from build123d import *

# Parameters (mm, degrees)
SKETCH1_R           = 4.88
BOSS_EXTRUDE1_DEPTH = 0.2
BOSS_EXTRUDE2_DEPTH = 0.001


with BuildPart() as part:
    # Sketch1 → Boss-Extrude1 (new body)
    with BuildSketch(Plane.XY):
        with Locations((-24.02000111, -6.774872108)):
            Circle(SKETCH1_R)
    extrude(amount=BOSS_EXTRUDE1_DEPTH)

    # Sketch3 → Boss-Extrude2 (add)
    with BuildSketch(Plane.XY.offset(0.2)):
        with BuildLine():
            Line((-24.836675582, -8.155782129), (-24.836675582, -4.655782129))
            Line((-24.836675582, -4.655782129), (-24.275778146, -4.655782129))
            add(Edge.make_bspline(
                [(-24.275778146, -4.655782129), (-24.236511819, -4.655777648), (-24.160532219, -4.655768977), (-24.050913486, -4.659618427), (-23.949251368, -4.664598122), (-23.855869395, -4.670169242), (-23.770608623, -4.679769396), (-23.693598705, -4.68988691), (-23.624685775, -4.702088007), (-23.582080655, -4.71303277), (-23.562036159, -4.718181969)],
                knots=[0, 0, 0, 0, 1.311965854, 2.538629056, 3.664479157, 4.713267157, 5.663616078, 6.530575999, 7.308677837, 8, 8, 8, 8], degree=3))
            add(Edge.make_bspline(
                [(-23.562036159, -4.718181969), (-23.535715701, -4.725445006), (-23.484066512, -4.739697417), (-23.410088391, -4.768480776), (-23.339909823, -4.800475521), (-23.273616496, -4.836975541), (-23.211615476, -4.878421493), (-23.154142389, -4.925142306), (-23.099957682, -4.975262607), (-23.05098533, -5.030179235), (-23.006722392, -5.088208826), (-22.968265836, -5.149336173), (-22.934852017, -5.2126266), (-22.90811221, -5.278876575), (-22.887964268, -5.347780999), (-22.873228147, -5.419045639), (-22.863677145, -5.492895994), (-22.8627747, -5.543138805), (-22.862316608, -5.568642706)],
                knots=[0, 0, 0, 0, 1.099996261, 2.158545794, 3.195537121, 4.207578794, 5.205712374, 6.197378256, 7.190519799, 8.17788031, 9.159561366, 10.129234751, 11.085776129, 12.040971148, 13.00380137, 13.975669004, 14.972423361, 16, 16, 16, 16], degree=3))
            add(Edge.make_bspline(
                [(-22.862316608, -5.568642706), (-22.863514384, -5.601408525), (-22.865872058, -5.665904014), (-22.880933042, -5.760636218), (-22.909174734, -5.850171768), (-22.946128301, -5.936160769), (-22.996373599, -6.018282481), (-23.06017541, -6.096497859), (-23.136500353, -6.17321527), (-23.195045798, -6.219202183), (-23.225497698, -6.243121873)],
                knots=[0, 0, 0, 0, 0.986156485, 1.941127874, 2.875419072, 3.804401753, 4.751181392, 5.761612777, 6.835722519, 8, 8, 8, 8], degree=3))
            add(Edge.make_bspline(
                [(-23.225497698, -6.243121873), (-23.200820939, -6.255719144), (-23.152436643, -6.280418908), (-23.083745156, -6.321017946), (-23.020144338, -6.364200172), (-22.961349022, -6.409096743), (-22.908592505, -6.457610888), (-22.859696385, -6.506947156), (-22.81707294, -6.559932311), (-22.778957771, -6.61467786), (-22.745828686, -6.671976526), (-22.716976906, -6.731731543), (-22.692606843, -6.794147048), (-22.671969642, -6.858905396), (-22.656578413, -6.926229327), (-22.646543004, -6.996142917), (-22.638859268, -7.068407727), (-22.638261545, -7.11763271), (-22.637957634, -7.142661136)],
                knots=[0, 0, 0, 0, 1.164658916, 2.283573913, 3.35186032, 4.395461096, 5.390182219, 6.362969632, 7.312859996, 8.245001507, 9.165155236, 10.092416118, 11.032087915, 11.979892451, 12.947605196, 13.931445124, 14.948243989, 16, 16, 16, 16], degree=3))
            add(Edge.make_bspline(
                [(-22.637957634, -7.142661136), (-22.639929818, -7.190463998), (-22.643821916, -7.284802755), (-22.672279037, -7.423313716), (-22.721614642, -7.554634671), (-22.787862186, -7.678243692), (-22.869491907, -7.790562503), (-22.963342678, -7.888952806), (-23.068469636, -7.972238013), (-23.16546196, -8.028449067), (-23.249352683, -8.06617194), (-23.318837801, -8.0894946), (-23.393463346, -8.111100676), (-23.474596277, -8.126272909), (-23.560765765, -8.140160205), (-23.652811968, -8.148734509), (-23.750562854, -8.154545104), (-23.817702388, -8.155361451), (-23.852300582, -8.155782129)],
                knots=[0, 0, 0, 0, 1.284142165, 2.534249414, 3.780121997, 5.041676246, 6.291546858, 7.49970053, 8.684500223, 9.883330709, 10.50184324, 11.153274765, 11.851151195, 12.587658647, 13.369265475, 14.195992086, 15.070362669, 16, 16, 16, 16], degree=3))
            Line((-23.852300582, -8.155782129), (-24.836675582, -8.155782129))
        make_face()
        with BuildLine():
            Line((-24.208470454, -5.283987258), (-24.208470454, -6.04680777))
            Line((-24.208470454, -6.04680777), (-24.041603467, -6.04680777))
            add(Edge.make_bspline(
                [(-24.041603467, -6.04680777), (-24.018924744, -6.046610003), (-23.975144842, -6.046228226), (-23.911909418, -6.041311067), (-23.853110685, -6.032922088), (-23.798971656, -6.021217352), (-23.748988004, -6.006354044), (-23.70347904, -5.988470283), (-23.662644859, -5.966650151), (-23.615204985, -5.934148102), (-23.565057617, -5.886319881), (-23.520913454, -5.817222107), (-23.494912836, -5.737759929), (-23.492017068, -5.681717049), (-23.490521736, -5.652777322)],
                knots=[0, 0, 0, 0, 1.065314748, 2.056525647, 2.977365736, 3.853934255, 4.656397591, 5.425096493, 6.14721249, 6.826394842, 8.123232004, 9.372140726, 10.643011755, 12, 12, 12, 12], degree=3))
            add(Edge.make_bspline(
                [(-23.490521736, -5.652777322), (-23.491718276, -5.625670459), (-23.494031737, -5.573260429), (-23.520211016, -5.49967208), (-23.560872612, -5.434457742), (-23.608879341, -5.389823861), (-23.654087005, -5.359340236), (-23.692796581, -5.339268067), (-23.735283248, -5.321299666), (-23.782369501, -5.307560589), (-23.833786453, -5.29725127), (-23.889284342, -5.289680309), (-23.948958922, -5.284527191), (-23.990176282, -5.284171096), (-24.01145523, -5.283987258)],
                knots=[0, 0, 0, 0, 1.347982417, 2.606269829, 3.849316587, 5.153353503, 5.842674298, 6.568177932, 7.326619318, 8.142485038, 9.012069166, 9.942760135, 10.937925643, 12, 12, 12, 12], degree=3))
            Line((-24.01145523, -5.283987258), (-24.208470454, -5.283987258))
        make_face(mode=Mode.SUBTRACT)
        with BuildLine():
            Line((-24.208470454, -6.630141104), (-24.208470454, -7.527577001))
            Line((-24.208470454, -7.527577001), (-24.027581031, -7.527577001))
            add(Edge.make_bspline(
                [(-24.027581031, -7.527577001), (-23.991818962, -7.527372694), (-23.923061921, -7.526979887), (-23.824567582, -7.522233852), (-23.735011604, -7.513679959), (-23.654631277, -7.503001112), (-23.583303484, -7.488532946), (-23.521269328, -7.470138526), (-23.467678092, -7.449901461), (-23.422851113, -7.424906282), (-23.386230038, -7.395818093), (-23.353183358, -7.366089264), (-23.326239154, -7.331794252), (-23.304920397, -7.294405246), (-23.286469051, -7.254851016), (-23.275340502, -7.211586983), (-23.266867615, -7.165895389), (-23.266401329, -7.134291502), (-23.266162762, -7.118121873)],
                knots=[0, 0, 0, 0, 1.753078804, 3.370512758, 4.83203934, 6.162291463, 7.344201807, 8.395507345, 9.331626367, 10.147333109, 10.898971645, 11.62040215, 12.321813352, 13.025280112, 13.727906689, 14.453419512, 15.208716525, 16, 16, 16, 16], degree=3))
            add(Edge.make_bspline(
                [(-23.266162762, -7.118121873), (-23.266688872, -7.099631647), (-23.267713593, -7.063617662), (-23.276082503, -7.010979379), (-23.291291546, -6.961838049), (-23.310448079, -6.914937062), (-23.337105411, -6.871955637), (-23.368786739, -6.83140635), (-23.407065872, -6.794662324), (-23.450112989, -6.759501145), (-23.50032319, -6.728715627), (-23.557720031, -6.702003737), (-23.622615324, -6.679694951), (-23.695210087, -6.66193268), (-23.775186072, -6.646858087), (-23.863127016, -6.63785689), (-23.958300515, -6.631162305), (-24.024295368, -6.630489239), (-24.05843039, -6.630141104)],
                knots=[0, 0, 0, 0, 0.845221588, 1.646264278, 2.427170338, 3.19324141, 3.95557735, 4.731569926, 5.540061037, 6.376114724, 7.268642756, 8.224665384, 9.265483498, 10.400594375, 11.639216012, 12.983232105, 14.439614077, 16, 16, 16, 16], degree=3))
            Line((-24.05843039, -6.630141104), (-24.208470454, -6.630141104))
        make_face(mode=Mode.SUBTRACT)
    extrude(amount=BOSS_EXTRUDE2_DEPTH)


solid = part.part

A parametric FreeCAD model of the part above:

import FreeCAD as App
import Part
import Sketcher

V = App.Vector
Q = App.Units.Quantity

doc = App.newDocument("Part")
params = doc.addObject("Spreadsheet::Sheet", "Params")
for row, (alias, value) in enumerate([
    ("sketch1_diameter", "9.76 mm"),
    ("pad1_length", "0.2 mm"),
    ("pad2_length", "0.001 mm"),
], start=1):
    params.set(f"A{row}", alias)
    params.set(f"B{row}", "=" + value)
    params.setAlias(f"B{row}", alias)

body = doc.addObject("PartDesign::Body", "Body")

# Sketch on XY plane
sketch1 = doc.addObject("Sketcher::SketchObject", "Sketch")
body.addObject(sketch1)
sketch1.AttachmentSupport = (doc.XY_Plane, [""])
sketch1.MapMode = "FlatFace"
sketch1.addGeometry(Part.Circle(V(-24.020001, -6.774872, 0), V(0, 0, 1), 4.88), False)
sketch1.addConstraint(Sketcher.Constraint("Diameter", 0, Q("9.76 mm")))
sketch1.addConstraint(Sketcher.Constraint("DistanceX", 0, 3, -1, 1, Q("24.020001 mm")))
sketch1.addConstraint(Sketcher.Constraint("DistanceY", 0, 3, -1, 1, Q("6.774872 mm")))
sketch1.setExpression("Constraints[0]", "Params.sketch1_diameter")
pad1 = doc.addObject("PartDesign::Pad", "Pad")
body.addObject(pad1)
pad1.Profile = sketch1
pad1.setExpression("Length", "Params.pad1_length")

# Sketch on XY plane
sketch2 = doc.addObject("Sketcher::SketchObject", "Sketch001")
body.addObject(sketch2)
sketch2.AttachmentSupport = (doc.XY_Plane, [""])
sketch2.MapMode = "FlatFace"
sketch2.AttachmentOffset = App.Placement(V(0, 0, 0.2), App.Rotation())
sketch2.addGeometry(Part.LineSegment(V(-24.836676, -4.655782, 0), V(-24.836676, -8.155782, 0)), False)
sketch2.addGeometry(Part.LineSegment(V(-24.836676, -8.155782, 0), V(-23.852301, -8.155782, 0)), False)
sketch2.addGeometry(Part.BSplineCurve([V(-22.637958, -7.142661, 0), V(-22.63993, -7.190464, 0), V(-22.643822, -7.284803, 0), V(-22.672279, -7.423314, 0), V(-22.721615, -7.554635, 0), V(-22.787862, -7.678244, 0), V(-22.869492, -7.790563, 0), V(-22.963343, -7.888953, 0), V(-23.06847, -7.972238, 0), V(-23.165462, -8.028449, 0), V(-23.249353, -8.066172, 0), V(-23.318838, -8.089495, 0), V(-23.393463, -8.111101, 0), V(-23.474596, -8.126273, 0), V(-23.560766, -8.14016, 0), V(-23.652812, -8.148735, 0), V(-23.750563, -8.154545, 0), V(-23.817702, -8.155361, 0), V(-23.852301, -8.155782, 0)], [4, 1, 1, 1, 1, 1, 1, 1, 1, 1, 1, 1, 1, 1, 1, 1, 4], [0, 1.284142165, 2.534249414, 3.780121997, 5.041676246, 6.291546858, 7.49970053, 8.684500223, 9.883330709, 10.50184324, 11.153274765, 11.851151195, 12.587658647, 13.369265475, 14.195992086, 15.070362669, 16], False, 3, [1, 1, 1, 1, 1, 1, 1, 1, 1, 1, 1, 1, 1, 1, 1, 1, 1, 1, 1], False), False)
sketch2.addGeometry(Part.BSplineCurve([V(-23.225498, -6.243122, 0), V(-23.200821, -6.255719, 0), V(-23.152437, -6.280419, 0), V(-23.083745, -6.321018, 0), V(-23.020144, -6.3642, 0), V(-22.961349, -6.409097, 0), V(-22.908593, -6.457611, 0), V(-22.859696, -6.506947, 0), V(-22.817073, -6.559932, 0), V(-22.778958, -6.614678, 0), V(-22.745829, -6.671977, 0), V(-22.716977, -6.731732, 0), V(-22.692607, -6.794147, 0), V(-22.67197, -6.858905, 0), V(-22.656578, -6.926229, 0), V(-22.646543, -6.996143, 0), V(-22.638859, -7.068408, 0), V(-22.638262, -7.117633, 0), V(-22.637958, -7.142661, 0)], [4, 1, 1, 1, 1, 1, 1, 1, 1, 1, 1, 1, 1, 1, 1, 1, 4], [0, 1.164658916, 2.283573913, 3.35186032, 4.395461096, 5.390182219, 6.362969632, 7.312859996, 8.245001507, 9.165155236, 10.092416118, 11.032087915, 11.979892451, 12.947605196, 13.931445124, 14.948243989, 16], False, 3, [1, 1, 1, 1, 1, 1, 1, 1, 1, 1, 1, 1, 1, 1, 1, 1, 1, 1, 1], False), False)
sketch2.addGeometry(Part.BSplineCurve([V(-22.862317, -5.568643, 0), V(-22.863514, -5.601409, 0), V(-22.865872, -5.665904, 0), V(-22.880933, -5.760636, 0), V(-22.909175, -5.850172, 0), V(-22.946128, -5.936161, 0), V(-22.996374, -6.018282, 0), V(-23.060175, -6.096498, 0), V(-23.1365, -6.173215, 0), V(-23.195046, -6.219202, 0), V(-23.225498, -6.243122, 0)], [4, 1, 1, 1, 1, 1, 1, 1, 4], [0, 0.986156485, 1.941127874, 2.875419072, 3.804401753, 4.751181392, 5.761612777, 6.835722519, 8], False, 3, [1, 1, 1, 1, 1, 1, 1, 1, 1, 1, 1], False), False)
sketch2.addGeometry(Part.BSplineCurve([V(-23.562036, -4.718182, 0), V(-23.535716, -4.725445, 0), V(-23.484067, -4.739697, 0), V(-23.410088, -4.768481, 0), V(-23.33991, -4.800476, 0), V(-23.273616, -4.836976, 0), V(-23.211615, -4.878421, 0), V(-23.154142, -4.925142, 0), V(-23.099958, -4.975263, 0), V(-23.050985, -5.030179, 0), V(-23.006722, -5.088209, 0), V(-22.968266, -5.149336, 0), V(-22.934852, -5.212627, 0), V(-22.908112, -5.278877, 0), V(-22.887964, -5.347781, 0), V(-22.873228, -5.419046, 0), V(-22.863677, -5.492896, 0), V(-22.862775, -5.543139, 0), V(-22.862317, -5.568643, 0)], [4, 1, 1, 1, 1, 1, 1, 1, 1, 1, 1, 1, 1, 1, 1, 1, 4], [0, 1.099996261, 2.158545794, 3.195537121, 4.207578794, 5.205712374, 6.197378256, 7.190519799, 8.17788031, 9.159561366, 10.129234751, 11.085776129, 12.040971148, 13.00380137, 13.975669004, 14.972423361, 16], False, 3, [1, 1, 1, 1, 1, 1, 1, 1, 1, 1, 1, 1, 1, 1, 1, 1, 1, 1, 1], False), False)
sketch2.addGeometry(Part.BSplineCurve([V(-24.275778, -4.655782, 0), V(-24.236512, -4.655778, 0), V(-24.160532, -4.655769, 0), V(-24.050913, -4.659618, 0), V(-23.949251, -4.664598, 0), V(-23.855869, -4.670169, 0), V(-23.770609, -4.679769, 0), V(-23.693599, -4.689887, 0), V(-23.624686, -4.702088, 0), V(-23.582081, -4.713033, 0), V(-23.562036, -4.718182, 0)], [4, 1, 1, 1, 1, 1, 1, 1, 4], [0, 1.311965854, 2.538629056, 3.664479157, 4.713267157, 5.663616078, 6.530575999, 7.308677837, 8], False, 3, [1, 1, 1, 1, 1, 1, 1, 1, 1, 1, 1], False), False)
sketch2.addGeometry(Part.LineSegment(V(-24.275778, -4.655782, 0), V(-24.836676, -4.655782, 0)), False)
sketch2.addGeometry(Part.LineSegment(V(-24.20847, -6.630141, 0), V(-24.05843, -6.630141, 0)), False)
sketch2.addGeometry(Part.BSplineCurve([V(-23.266163, -7.118122, 0), V(-23.266689, -7.099632, 0), V(-23.267714, -7.063618, 0), V(-23.276083, -7.010979, 0), V(-23.291292, -6.961838, 0), V(-23.310448, -6.914937, 0), V(-23.337105, -6.871956, 0), V(-23.368787, -6.831406, 0), V(-23.407066, -6.794662, 0), V(-23.450113, -6.759501, 0), V(-23.500323, -6.728716, 0), V(-23.55772, -6.702004, 0), V(-23.622615, -6.679695, 0), V(-23.69521, -6.661933, 0), V(-23.775186, -6.646858, 0), V(-23.863127, -6.637857, 0), V(-23.958301, -6.631162, 0), V(-24.024295, -6.630489, 0), V(-24.05843, -6.630141, 0)], [4, 1, 1, 1, 1, 1, 1, 1, 1, 1, 1, 1, 1, 1, 1, 1, 4], [0, 0.845221588, 1.646264278, 2.427170338, 3.19324141, 3.95557735, 4.731569926, 5.540061037, 6.376114724, 7.268642756, 8.224665384, 9.265483498, 10.400594375, 11.639216012, 12.983232105, 14.439614077, 16], False, 3, [1, 1, 1, 1, 1, 1, 1, 1, 1, 1, 1, 1, 1, 1, 1, 1, 1, 1, 1], False), False)
sketch2.addGeometry(Part.BSplineCurve([V(-24.027581, -7.527577, 0), V(-23.991819, -7.527373, 0), V(-23.923062, -7.52698, 0), V(-23.824568, -7.522234, 0), V(-23.735012, -7.51368, 0), V(-23.654631, -7.503001, 0), V(-23.583303, -7.488533, 0), V(-23.521269, -7.470139, 0), V(-23.467678, -7.449901, 0), V(-23.422851, -7.424906, 0), V(-23.38623, -7.395818, 0), V(-23.353183, -7.366089, 0), V(-23.326239, -7.331794, 0), V(-23.30492, -7.294405, 0), V(-23.286469, -7.254851, 0), V(-23.275341, -7.211587, 0), V(-23.266868, -7.165895, 0), V(-23.266401, -7.134292, 0), V(-23.266163, -7.118122, 0)], [4, 1, 1, 1, 1, 1, 1, 1, 1, 1, 1, 1, 1, 1, 1, 1, 4], [0, 1.753078804, 3.370512758, 4.83203934, 6.162291463, 7.344201807, 8.395507345, 9.331626367, 10.147333109, 10.898971645, 11.62040215, 12.321813352, 13.025280112, 13.727906689, 14.453419512, 15.208716525, 16], False, 3, [1, 1, 1, 1, 1, 1, 1, 1, 1, 1, 1, 1, 1, 1, 1, 1, 1, 1, 1], False), False)
sketch2.addGeometry(Part.LineSegment(V(-24.027581, -7.527577, 0), V(-24.20847, -7.527577, 0)), False)
sketch2.addGeometry(Part.LineSegment(V(-24.20847, -7.527577, 0), V(-24.20847, -6.630141, 0)), False)
sketch2.addGeometry(Part.LineSegment(V(-24.20847, -5.283987, 0), V(-24.011455, -5.283987, 0)), False)
sketch2.addGeometry(Part.BSplineCurve([V(-23.490522, -5.652777, 0), V(-23.491718, -5.62567, 0), V(-23.494032, -5.57326, 0), V(-23.520211, -5.499672, 0), V(-23.560873, -5.434458, 0), V(-23.608879, -5.389824, 0), V(-23.654087, -5.35934, 0), V(-23.692797, -5.339268, 0), V(-23.735283, -5.3213, 0), V(-23.78237, -5.307561, 0), V(-23.833786, -5.297251, 0), V(-23.889284, -5.28968, 0), V(-23.948959, -5.284527, 0), V(-23.990176, -5.284171, 0), V(-24.011455, -5.283987, 0)], [4, 1, 1, 1, 1, 1, 1, 1, 1, 1, 1, 1, 4], [0, 1.347982417, 2.606269829, 3.849316587, 5.153353503, 5.842674298, 6.568177932, 7.326619318, 8.142485038, 9.012069166, 9.942760135, 10.937925643, 12], False, 3, [1, 1, 1, 1, 1, 1, 1, 1, 1, 1, 1, 1, 1, 1, 1], False), False)
sketch2.addGeometry(Part.BSplineCurve([V(-24.041603, -6.046808, 0), V(-24.018925, -6.04661, 0), V(-23.975145, -6.046228, 0), V(-23.911909, -6.041311, 0), V(-23.853111, -6.032922, 0), V(-23.798972, -6.021217, 0), V(-23.748988, -6.006354, 0), V(-23.703479, -5.98847, 0), V(-23.662645, -5.96665, 0), V(-23.615205, -5.934148, 0), V(-23.565058, -5.88632, 0), V(-23.520913, -5.817222, 0), V(-23.494913, -5.73776, 0), V(-23.492017, -5.681717, 0), V(-23.490522, -5.652777, 0)], [4, 1, 1, 1, 1, 1, 1, 1, 1, 1, 1, 1, 4], [0, 1.065314748, 2.056525647, 2.977365736, 3.853934255, 4.656397591, 5.425096493, 6.14721249, 6.826394842, 8.123232004, 9.372140726, 10.643011755, 12], False, 3, [1, 1, 1, 1, 1, 1, 1, 1, 1, 1, 1, 1, 1, 1, 1], False), False)
sketch2.addGeometry(Part.LineSegment(V(-24.041603, -6.046808, 0), V(-24.20847, -6.046808, 0)), False)
sketch2.addGeometry(Part.LineSegment(V(-24.20847, -6.046808, 0), V(-24.20847, -5.283987, 0)), False)
sketch2.addConstraint(Sketcher.Constraint("Block", 2))
sketch2.addConstraint(Sketcher.Constraint("Block", 3))
sketch2.addConstraint(Sketcher.Constraint("Block", 4))
sketch2.addConstraint(Sketcher.Constraint("Block", 5))
sketch2.addConstraint(Sketcher.Constraint("Block", 6))
sketch2.addConstraint(Sketcher.Constraint("Block", 9))
sketch2.addConstraint(Sketcher.Constraint("Block", 10))
sketch2.addConstraint(Sketcher.Constraint("Block", 14))
sketch2.addConstraint(Sketcher.Constraint("Block", 15))
sketch2.addConstraint(Sketcher.Constraint("Coincident", 0, 2, 1, 1))
sketch2.addConstraint(Sketcher.Constraint("Coincident", 1, 2, 2, 2))
sketch2.addConstraint(Sketcher.Constraint("Coincident", 6, 1, 7, 1))
sketch2.addConstraint(Sketcher.Constraint("Coincident", 7, 2, 0, 1))
sketch2.addConstraint(Sketcher.Constraint("Coincident", 8, 2, 9, 2))
sketch2.addConstraint(Sketcher.Constraint("Coincident", 10, 1, 11, 1))
sketch2.addConstraint(Sketcher.Constraint("Coincident", 11, 2, 12, 1))
sketch2.addConstraint(Sketcher.Constraint("Coincident", 12, 2, 8, 1))
sketch2.addConstraint(Sketcher.Constraint("Coincident", 13, 2, 14, 2))
sketch2.addConstraint(Sketcher.Constraint("Coincident", 15, 1, 16, 1))
sketch2.addConstraint(Sketcher.Constraint("Coincident", 16, 2, 17, 1))
sketch2.addConstraint(Sketcher.Constraint("Coincident", 17, 2, 13, 1))
sketch2.addConstraint(Sketcher.Constraint("Vertical", 0))
sketch2.addConstraint(Sketcher.Constraint("Horizontal", 1))
sketch2.addConstraint(Sketcher.Constraint("Horizontal", 7))
sketch2.addConstraint(Sketcher.Constraint("Horizontal", 8))
sketch2.addConstraint(Sketcher.Constraint("Horizontal", 11))
sketch2.addConstraint(Sketcher.Constraint("Vertical", 12))
sketch2.addConstraint(Sketcher.Constraint("Horizontal", 13))
sketch2.addConstraint(Sketcher.Constraint("Horizontal", 16))
sketch2.addConstraint(Sketcher.Constraint("Vertical", 17))
sketch2.addConstraint(Sketcher.Constraint("Vertical", 12, 2, 16, 2))
sketch2.addConstraint(Sketcher.Constraint("DistanceX", 8, 1, 8, 2, Q("0.15004 mm")))
sketch2.addConstraint(Sketcher.Constraint("DistanceX", 1, 1, 1, 2, Q("0.984375 mm")))
pad2 = doc.addObject("PartDesign::Pad", "Pad001")
body.addObject(pad2)
pad2.Profile = sketch2
pad2.setExpression("Length", "Params.pad2_length")

doc.recompute()
